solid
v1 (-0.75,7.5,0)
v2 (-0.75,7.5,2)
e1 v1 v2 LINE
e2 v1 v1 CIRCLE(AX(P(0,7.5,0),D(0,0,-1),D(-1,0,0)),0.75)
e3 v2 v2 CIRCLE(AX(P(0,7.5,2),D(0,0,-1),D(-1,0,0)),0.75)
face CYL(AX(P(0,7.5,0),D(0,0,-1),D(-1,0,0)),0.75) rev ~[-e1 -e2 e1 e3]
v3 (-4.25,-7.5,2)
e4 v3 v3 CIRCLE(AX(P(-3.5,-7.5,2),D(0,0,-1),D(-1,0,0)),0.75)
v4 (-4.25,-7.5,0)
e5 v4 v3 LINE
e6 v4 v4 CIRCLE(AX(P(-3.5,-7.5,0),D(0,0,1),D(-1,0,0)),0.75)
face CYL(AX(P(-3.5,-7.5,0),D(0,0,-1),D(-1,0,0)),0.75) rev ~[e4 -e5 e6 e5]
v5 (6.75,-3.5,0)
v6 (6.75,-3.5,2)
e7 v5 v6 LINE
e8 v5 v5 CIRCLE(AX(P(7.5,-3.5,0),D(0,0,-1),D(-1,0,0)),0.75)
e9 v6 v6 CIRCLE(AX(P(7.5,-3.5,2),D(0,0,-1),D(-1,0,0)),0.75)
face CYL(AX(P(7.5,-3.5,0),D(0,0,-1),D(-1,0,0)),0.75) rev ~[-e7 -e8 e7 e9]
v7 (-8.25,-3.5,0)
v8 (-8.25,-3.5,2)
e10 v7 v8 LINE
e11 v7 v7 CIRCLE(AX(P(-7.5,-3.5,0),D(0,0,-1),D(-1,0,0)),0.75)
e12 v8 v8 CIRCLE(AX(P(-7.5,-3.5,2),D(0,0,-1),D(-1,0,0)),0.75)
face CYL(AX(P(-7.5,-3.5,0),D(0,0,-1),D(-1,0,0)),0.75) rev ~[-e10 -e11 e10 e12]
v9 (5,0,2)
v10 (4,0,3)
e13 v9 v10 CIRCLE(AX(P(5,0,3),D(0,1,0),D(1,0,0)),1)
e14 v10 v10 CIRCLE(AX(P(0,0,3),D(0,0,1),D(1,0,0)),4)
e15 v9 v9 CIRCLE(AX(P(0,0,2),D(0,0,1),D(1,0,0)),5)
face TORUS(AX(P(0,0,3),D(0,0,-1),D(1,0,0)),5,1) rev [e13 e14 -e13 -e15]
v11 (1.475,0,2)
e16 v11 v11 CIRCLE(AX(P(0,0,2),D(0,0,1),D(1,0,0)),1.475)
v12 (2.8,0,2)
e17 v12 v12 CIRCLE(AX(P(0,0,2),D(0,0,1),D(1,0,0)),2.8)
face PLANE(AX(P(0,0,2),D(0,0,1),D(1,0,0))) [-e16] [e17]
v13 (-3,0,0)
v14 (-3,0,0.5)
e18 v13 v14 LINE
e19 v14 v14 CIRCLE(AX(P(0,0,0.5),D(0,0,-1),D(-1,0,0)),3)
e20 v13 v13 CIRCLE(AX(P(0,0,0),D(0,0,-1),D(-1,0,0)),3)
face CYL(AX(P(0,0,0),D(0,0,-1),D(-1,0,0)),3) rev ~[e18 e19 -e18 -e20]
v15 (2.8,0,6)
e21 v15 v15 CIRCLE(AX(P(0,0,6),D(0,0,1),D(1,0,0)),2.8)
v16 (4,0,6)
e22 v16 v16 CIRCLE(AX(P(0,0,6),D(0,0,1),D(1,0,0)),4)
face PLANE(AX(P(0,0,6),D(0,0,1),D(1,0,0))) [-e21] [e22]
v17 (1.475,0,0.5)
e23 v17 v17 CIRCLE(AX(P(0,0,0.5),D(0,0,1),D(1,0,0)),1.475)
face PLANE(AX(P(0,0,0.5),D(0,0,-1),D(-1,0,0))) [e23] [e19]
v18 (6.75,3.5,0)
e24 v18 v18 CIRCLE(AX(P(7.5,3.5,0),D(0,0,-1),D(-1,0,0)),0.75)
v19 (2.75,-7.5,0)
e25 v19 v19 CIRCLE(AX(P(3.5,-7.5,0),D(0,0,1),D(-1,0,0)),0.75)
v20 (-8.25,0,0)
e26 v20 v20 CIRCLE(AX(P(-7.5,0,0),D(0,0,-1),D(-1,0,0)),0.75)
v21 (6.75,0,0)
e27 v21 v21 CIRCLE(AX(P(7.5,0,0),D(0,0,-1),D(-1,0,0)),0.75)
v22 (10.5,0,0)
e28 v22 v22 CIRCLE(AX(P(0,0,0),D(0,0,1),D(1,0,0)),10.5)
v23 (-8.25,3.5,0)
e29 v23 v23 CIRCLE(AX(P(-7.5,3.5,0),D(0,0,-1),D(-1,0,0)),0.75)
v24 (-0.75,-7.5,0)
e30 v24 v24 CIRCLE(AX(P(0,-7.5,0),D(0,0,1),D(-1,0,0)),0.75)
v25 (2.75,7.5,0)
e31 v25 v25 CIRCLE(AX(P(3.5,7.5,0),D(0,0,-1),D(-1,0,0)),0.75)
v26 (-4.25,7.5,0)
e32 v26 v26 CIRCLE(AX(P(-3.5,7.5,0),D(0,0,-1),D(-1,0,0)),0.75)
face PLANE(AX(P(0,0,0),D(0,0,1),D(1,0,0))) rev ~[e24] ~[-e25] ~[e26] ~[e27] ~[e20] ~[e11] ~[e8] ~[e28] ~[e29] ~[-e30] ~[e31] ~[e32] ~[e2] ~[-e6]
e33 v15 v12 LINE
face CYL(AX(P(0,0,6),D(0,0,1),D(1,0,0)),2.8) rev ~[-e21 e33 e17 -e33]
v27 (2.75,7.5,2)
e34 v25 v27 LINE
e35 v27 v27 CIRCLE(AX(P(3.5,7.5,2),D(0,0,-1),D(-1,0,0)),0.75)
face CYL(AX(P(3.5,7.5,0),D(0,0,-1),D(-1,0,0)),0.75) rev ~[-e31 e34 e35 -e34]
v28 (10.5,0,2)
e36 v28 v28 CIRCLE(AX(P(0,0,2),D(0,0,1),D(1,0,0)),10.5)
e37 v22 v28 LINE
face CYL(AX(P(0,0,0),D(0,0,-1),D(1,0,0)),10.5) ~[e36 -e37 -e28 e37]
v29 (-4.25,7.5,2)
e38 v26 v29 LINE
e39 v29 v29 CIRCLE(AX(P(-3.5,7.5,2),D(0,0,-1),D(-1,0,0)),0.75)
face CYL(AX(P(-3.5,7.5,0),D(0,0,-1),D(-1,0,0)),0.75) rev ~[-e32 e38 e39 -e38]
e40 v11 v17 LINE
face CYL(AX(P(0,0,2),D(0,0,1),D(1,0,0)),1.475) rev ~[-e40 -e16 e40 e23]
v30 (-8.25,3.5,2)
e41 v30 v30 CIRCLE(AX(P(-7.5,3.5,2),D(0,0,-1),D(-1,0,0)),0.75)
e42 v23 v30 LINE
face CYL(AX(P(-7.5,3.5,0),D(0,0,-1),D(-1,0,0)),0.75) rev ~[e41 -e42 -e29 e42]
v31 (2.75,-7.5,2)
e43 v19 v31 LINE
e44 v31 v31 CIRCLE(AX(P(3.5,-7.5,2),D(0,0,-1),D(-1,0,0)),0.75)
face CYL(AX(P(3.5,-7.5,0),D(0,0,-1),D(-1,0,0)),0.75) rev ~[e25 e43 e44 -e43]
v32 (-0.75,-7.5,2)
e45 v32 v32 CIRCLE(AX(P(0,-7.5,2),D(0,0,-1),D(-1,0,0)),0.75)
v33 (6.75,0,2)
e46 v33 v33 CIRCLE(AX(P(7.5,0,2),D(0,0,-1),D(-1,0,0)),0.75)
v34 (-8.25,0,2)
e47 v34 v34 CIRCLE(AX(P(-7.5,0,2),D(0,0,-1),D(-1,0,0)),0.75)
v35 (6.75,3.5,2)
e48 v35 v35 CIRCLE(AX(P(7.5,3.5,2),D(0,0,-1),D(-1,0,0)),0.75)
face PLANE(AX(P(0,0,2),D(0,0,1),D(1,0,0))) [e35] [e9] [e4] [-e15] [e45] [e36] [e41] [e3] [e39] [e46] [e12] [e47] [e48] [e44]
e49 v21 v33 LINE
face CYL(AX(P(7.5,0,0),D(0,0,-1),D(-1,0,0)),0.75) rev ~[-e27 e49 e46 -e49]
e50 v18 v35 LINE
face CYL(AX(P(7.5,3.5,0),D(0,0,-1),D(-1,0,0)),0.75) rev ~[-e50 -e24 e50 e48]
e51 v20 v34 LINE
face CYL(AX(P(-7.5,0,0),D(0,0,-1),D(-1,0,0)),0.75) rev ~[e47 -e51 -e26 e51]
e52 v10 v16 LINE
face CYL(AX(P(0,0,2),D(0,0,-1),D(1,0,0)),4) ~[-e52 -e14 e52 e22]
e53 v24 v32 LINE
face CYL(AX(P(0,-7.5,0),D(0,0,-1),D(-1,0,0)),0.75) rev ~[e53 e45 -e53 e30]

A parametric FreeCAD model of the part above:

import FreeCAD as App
import Part
import Sketcher


def edges_at(feature, points):
    """Names of the edges that pass closest to the given points."""
    edges = feature.Shape.Edges
    near = lambda p: min(range(len(edges)), key=lambda i: edges[i].distToShape(Part.Vertex(*p))[0])
    return sorted({f"Edge{near(p) + 1}" for p in points})

doc = App.newDocument("Part")
body = doc.addObject("PartDesign::Body", "Body")

sketch1 = body.newObject("Sketcher::SketchObject", "Sketch")
sketch1.AttachmentSupport = (doc.getObject("XY_Plane"), [""])
sketch1.MapMode = "FlatFace"
sketch1.addGeometry(Part.Circle(App.Vector(0, 0, 0), App.Vector(0, 0, 1), 10), False)
sketch1.addConstraint([
    Sketcher.Constraint("Coincident", 0, 3, -1, 1),
    Sketcher.Constraint("Diameter", 0, 21.0),
])
pad1 = body.newObject("PartDesign::Pad", "Pad")
pad1.Profile = sketch1
pad1.Length = 2

sketch2 = body.newObject("Sketcher::SketchObject", "Sketch001")
sketch2.AttachmentSupport = (doc.getObject("XY_Plane"), [""])
sketch2.MapMode = "FlatFace"
sketch2.AttachmentOffset = App.Placement(App.Vector(0, 0, 2), App.Rotation())
sketch2.addGeometry(Part.Circle(App.Vector(0, 0, 0), App.Vector(0, 0, 1), 4), False)
sketch2.addConstraint([
    Sketcher.Constraint("Coincident", 0, 3, -1, 1),
    Sketcher.Constraint("Diameter", 0, 8.0),
])
pad2 = body.newObject("PartDesign::Pad", "Pad001")
pad2.Profile = sketch2
pad2.Length = 4
doc.recompute()

fillet = body.newObject("PartDesign::Fillet", "Fillet")
fillet.Base = (pad2, edges_at(pad2, [(-4, 0, 2)]))
fillet.Radius = 1

sketch3 = body.newObject("Sketcher::SketchObject", "Sketch002")
sketch3.AttachmentSupport = (doc.getObject("XY_Plane"), [""])
sketch3.MapMode = "FlatFace"
sketch3.AttachmentOffset = App.Placement(App.Vector(0, 0, 6), App.Rotation())
sketch3.addGeometry(Part.Circle(App.Vector(0, 0, 0), App.Vector(0, 0, 1), 2.8), False)
sketch3.addConstraint([
    Sketcher.Constraint("Coincident", 0, 3, -1, 1),
    Sketcher.Constraint("Diameter", 0, 5.6),
])
pocket1 = body.newObject("PartDesign::Pocket", "Pocket")
pocket1.Profile = sketch3
pocket1.Length = 4

sketch4 = body.newObject("Sketcher::SketchObject", "Sketch003")
sketch4.AttachmentSupport = (doc.getObject("XY_Plane"), [""])
sketch4.MapMode = "FlatFace"
sketch4.AttachmentOffset = App.Placement(App.Vector(0, 0, 2), App.Rotation())
sketch4.addGeometry(Part.Circle(App.Vector(0, 0, 0), App.Vector(0, 0, 1), 1.5), False)
sketch4.addConstraint([
    Sketcher.Constraint("Coincident", 0, 3, -1, 1),
    Sketcher.Constraint("Diameter", 0, 2.95),
])
pocket2 = body.newObject("PartDesign::Pocket", "Pocket001")
pocket2.Profile = sketch4
pocket2.Length = 2

sketch5 = body.newObject("Sketcher::SketchObject", "Sketch004")
sketch5.AttachmentSupport = (doc.getObject("XY_Plane"), [""])
sketch5.MapMode = "FlatFace"
sketch5.addGeometry([
    Part.Circle(App.Vector(0, 0, 0), App.Vector(0, 0, 1), 3),
    Part.Circle(App.Vector(0, 0, 0), App.Vector(0, 0, 1), 1.5),
], False)
sketch5.addConstraint([
    Sketcher.Constraint("Coincident", 0, 3, -1, 1),
    Sketcher.Constraint("Coincident", 1, 3, -1, 1),
    Sketcher.Constraint("Diameter", 0, 6.0),
    Sketcher.Constraint("Diameter", 1, 2.95),
])
pocket3 = body.newObject("PartDesign::Pocket", "Pocket002")
pocket3.Profile = sketch5
pocket3.Length = 0.5
pocket3.Reversed = True

sketch6 = body.newObject("Sketcher::SketchObject", "Sketch005")
sketch6.AttachmentSupport = (doc.getObject("XY_Plane"), [""])
sketch6.MapMode = "FlatFace"
sketch6.addGeometry([
    Part.Circle(App.Vector(-3.5, -7.5, 0), App.Vector(0, 0, 1), 0.8),
    Part.Circle(App.Vector(3.5, -7.5, 0), App.Vector(0, 0, 1), 0.8),
    Part.Circle(App.Vector(0, -7.5, 0), App.Vector(0, 0, 1), 0.8),
    Part.Circle(App.Vector(-7.5, 0, 0), App.Vector(0, 0, 1), 0.8),
    Part.Circle(App.Vector(-7.5, 3.5, 0), App.Vector(0, 0, 1), 0.8),
    Part.Circle(App.Vector(-7.5, -3.5, 0), App.Vector(0, 0, 1), 0.8),
    Part.Circle(App.Vector(0, 7.5, 0), App.Vector(0, 0, 1), 0.8),
    Part.Circle(App.Vector(3.5, 7.5, 0), App.Vector(0, 0, 1), 0.8),
    Part.Circle(App.Vector(-3.5, 7.5, 0), App.Vector(0, 0, 1), 0.8),
    Part.Circle(App.Vector(7.5, 0, 0), App.Vector(0, 0, 1), 0.8),
    Part.Circle(App.Vector(7.5, -3.5, 0), App.Vector(0, 0, 1), 0.8),
    Part.Circle(App.Vector(7.5, 3.5, 0), App.Vector(0, 0, 1), 0.8),
], False)
sketch6.addConstraint([
    Sketcher.Constraint("Equal", 0, 1),
    Sketcher.Constraint("Equal", 1, 2),
    Sketcher.Constraint("Equal", 2, 3),
    Sketcher.Constraint("Equal", 3, 4),
    Sketcher.Constraint("Equal", 4, 5),
    Sketcher.Constraint("Equal", 5, 6),
    Sketcher.Constraint("Equal", 6, 7),
    Sketcher.Constraint("Equal", 7, 8),
    Sketcher.Constraint("Equal", 8, 9),
    Sketcher.Constraint("Equal", 9, 10),
    Sketcher.Constraint("Equal", 10, 11),
    Sketcher.Constraint("Symmetric", 2, 3, 6, 3, -1, 1),
    Sketcher.Constraint("Symmetric", 0, 3, 7, 3, -1, 1),
    Sketcher.Constraint("Symmetric", 1, 3, 8, 3, -1, 1),
    Sketcher.Constraint("Symmetric", 3, 3, 9, 3, -1, 1),
    Sketcher.Constraint("Symmetric", 4, 3, 10, 3, -1, 1),
    Sketcher.Constraint("Symmetric", 5, 3, 11, 3, -1, 1),
    Sketcher.Constraint("Symmetric", 0, 3, 1, 3, -2),
    Sketcher.Constraint("Symmetric", 5, 3, 10, 3, -2),
    Sketcher.Constraint("PointOnObject", 2, 3, -2),
    Sketcher.Constraint("PointOnObject", 3, 3, -1),
    Sketcher.Constraint("Horizontal", 1, 3, 2, 3),
    Sketcher.Constraint("Vertical", 3, 3, 4, 3),
    Sketcher.Constraint("Diameter", 0, 1.5),
    Sketcher.Constraint("DistanceX", 0, 3, -1, 1, 3.5),
    Sketcher.Constraint("DistanceY", 0, 3, -1, 1, 7.5),
    Sketcher.Constraint("DistanceX", 3, 3, -1, 1, 7.5),
    Sketcher.Constraint("DistanceY", -1, 1, 4, 3, 3.5),
])
pocket4 = body.newObject("PartDesign::Pocket", "Pocket003")
pocket4.Profile = sketch6
pocket4.Type = "ThroughAll"
pocket4.Reversed = True

doc.recompute()
